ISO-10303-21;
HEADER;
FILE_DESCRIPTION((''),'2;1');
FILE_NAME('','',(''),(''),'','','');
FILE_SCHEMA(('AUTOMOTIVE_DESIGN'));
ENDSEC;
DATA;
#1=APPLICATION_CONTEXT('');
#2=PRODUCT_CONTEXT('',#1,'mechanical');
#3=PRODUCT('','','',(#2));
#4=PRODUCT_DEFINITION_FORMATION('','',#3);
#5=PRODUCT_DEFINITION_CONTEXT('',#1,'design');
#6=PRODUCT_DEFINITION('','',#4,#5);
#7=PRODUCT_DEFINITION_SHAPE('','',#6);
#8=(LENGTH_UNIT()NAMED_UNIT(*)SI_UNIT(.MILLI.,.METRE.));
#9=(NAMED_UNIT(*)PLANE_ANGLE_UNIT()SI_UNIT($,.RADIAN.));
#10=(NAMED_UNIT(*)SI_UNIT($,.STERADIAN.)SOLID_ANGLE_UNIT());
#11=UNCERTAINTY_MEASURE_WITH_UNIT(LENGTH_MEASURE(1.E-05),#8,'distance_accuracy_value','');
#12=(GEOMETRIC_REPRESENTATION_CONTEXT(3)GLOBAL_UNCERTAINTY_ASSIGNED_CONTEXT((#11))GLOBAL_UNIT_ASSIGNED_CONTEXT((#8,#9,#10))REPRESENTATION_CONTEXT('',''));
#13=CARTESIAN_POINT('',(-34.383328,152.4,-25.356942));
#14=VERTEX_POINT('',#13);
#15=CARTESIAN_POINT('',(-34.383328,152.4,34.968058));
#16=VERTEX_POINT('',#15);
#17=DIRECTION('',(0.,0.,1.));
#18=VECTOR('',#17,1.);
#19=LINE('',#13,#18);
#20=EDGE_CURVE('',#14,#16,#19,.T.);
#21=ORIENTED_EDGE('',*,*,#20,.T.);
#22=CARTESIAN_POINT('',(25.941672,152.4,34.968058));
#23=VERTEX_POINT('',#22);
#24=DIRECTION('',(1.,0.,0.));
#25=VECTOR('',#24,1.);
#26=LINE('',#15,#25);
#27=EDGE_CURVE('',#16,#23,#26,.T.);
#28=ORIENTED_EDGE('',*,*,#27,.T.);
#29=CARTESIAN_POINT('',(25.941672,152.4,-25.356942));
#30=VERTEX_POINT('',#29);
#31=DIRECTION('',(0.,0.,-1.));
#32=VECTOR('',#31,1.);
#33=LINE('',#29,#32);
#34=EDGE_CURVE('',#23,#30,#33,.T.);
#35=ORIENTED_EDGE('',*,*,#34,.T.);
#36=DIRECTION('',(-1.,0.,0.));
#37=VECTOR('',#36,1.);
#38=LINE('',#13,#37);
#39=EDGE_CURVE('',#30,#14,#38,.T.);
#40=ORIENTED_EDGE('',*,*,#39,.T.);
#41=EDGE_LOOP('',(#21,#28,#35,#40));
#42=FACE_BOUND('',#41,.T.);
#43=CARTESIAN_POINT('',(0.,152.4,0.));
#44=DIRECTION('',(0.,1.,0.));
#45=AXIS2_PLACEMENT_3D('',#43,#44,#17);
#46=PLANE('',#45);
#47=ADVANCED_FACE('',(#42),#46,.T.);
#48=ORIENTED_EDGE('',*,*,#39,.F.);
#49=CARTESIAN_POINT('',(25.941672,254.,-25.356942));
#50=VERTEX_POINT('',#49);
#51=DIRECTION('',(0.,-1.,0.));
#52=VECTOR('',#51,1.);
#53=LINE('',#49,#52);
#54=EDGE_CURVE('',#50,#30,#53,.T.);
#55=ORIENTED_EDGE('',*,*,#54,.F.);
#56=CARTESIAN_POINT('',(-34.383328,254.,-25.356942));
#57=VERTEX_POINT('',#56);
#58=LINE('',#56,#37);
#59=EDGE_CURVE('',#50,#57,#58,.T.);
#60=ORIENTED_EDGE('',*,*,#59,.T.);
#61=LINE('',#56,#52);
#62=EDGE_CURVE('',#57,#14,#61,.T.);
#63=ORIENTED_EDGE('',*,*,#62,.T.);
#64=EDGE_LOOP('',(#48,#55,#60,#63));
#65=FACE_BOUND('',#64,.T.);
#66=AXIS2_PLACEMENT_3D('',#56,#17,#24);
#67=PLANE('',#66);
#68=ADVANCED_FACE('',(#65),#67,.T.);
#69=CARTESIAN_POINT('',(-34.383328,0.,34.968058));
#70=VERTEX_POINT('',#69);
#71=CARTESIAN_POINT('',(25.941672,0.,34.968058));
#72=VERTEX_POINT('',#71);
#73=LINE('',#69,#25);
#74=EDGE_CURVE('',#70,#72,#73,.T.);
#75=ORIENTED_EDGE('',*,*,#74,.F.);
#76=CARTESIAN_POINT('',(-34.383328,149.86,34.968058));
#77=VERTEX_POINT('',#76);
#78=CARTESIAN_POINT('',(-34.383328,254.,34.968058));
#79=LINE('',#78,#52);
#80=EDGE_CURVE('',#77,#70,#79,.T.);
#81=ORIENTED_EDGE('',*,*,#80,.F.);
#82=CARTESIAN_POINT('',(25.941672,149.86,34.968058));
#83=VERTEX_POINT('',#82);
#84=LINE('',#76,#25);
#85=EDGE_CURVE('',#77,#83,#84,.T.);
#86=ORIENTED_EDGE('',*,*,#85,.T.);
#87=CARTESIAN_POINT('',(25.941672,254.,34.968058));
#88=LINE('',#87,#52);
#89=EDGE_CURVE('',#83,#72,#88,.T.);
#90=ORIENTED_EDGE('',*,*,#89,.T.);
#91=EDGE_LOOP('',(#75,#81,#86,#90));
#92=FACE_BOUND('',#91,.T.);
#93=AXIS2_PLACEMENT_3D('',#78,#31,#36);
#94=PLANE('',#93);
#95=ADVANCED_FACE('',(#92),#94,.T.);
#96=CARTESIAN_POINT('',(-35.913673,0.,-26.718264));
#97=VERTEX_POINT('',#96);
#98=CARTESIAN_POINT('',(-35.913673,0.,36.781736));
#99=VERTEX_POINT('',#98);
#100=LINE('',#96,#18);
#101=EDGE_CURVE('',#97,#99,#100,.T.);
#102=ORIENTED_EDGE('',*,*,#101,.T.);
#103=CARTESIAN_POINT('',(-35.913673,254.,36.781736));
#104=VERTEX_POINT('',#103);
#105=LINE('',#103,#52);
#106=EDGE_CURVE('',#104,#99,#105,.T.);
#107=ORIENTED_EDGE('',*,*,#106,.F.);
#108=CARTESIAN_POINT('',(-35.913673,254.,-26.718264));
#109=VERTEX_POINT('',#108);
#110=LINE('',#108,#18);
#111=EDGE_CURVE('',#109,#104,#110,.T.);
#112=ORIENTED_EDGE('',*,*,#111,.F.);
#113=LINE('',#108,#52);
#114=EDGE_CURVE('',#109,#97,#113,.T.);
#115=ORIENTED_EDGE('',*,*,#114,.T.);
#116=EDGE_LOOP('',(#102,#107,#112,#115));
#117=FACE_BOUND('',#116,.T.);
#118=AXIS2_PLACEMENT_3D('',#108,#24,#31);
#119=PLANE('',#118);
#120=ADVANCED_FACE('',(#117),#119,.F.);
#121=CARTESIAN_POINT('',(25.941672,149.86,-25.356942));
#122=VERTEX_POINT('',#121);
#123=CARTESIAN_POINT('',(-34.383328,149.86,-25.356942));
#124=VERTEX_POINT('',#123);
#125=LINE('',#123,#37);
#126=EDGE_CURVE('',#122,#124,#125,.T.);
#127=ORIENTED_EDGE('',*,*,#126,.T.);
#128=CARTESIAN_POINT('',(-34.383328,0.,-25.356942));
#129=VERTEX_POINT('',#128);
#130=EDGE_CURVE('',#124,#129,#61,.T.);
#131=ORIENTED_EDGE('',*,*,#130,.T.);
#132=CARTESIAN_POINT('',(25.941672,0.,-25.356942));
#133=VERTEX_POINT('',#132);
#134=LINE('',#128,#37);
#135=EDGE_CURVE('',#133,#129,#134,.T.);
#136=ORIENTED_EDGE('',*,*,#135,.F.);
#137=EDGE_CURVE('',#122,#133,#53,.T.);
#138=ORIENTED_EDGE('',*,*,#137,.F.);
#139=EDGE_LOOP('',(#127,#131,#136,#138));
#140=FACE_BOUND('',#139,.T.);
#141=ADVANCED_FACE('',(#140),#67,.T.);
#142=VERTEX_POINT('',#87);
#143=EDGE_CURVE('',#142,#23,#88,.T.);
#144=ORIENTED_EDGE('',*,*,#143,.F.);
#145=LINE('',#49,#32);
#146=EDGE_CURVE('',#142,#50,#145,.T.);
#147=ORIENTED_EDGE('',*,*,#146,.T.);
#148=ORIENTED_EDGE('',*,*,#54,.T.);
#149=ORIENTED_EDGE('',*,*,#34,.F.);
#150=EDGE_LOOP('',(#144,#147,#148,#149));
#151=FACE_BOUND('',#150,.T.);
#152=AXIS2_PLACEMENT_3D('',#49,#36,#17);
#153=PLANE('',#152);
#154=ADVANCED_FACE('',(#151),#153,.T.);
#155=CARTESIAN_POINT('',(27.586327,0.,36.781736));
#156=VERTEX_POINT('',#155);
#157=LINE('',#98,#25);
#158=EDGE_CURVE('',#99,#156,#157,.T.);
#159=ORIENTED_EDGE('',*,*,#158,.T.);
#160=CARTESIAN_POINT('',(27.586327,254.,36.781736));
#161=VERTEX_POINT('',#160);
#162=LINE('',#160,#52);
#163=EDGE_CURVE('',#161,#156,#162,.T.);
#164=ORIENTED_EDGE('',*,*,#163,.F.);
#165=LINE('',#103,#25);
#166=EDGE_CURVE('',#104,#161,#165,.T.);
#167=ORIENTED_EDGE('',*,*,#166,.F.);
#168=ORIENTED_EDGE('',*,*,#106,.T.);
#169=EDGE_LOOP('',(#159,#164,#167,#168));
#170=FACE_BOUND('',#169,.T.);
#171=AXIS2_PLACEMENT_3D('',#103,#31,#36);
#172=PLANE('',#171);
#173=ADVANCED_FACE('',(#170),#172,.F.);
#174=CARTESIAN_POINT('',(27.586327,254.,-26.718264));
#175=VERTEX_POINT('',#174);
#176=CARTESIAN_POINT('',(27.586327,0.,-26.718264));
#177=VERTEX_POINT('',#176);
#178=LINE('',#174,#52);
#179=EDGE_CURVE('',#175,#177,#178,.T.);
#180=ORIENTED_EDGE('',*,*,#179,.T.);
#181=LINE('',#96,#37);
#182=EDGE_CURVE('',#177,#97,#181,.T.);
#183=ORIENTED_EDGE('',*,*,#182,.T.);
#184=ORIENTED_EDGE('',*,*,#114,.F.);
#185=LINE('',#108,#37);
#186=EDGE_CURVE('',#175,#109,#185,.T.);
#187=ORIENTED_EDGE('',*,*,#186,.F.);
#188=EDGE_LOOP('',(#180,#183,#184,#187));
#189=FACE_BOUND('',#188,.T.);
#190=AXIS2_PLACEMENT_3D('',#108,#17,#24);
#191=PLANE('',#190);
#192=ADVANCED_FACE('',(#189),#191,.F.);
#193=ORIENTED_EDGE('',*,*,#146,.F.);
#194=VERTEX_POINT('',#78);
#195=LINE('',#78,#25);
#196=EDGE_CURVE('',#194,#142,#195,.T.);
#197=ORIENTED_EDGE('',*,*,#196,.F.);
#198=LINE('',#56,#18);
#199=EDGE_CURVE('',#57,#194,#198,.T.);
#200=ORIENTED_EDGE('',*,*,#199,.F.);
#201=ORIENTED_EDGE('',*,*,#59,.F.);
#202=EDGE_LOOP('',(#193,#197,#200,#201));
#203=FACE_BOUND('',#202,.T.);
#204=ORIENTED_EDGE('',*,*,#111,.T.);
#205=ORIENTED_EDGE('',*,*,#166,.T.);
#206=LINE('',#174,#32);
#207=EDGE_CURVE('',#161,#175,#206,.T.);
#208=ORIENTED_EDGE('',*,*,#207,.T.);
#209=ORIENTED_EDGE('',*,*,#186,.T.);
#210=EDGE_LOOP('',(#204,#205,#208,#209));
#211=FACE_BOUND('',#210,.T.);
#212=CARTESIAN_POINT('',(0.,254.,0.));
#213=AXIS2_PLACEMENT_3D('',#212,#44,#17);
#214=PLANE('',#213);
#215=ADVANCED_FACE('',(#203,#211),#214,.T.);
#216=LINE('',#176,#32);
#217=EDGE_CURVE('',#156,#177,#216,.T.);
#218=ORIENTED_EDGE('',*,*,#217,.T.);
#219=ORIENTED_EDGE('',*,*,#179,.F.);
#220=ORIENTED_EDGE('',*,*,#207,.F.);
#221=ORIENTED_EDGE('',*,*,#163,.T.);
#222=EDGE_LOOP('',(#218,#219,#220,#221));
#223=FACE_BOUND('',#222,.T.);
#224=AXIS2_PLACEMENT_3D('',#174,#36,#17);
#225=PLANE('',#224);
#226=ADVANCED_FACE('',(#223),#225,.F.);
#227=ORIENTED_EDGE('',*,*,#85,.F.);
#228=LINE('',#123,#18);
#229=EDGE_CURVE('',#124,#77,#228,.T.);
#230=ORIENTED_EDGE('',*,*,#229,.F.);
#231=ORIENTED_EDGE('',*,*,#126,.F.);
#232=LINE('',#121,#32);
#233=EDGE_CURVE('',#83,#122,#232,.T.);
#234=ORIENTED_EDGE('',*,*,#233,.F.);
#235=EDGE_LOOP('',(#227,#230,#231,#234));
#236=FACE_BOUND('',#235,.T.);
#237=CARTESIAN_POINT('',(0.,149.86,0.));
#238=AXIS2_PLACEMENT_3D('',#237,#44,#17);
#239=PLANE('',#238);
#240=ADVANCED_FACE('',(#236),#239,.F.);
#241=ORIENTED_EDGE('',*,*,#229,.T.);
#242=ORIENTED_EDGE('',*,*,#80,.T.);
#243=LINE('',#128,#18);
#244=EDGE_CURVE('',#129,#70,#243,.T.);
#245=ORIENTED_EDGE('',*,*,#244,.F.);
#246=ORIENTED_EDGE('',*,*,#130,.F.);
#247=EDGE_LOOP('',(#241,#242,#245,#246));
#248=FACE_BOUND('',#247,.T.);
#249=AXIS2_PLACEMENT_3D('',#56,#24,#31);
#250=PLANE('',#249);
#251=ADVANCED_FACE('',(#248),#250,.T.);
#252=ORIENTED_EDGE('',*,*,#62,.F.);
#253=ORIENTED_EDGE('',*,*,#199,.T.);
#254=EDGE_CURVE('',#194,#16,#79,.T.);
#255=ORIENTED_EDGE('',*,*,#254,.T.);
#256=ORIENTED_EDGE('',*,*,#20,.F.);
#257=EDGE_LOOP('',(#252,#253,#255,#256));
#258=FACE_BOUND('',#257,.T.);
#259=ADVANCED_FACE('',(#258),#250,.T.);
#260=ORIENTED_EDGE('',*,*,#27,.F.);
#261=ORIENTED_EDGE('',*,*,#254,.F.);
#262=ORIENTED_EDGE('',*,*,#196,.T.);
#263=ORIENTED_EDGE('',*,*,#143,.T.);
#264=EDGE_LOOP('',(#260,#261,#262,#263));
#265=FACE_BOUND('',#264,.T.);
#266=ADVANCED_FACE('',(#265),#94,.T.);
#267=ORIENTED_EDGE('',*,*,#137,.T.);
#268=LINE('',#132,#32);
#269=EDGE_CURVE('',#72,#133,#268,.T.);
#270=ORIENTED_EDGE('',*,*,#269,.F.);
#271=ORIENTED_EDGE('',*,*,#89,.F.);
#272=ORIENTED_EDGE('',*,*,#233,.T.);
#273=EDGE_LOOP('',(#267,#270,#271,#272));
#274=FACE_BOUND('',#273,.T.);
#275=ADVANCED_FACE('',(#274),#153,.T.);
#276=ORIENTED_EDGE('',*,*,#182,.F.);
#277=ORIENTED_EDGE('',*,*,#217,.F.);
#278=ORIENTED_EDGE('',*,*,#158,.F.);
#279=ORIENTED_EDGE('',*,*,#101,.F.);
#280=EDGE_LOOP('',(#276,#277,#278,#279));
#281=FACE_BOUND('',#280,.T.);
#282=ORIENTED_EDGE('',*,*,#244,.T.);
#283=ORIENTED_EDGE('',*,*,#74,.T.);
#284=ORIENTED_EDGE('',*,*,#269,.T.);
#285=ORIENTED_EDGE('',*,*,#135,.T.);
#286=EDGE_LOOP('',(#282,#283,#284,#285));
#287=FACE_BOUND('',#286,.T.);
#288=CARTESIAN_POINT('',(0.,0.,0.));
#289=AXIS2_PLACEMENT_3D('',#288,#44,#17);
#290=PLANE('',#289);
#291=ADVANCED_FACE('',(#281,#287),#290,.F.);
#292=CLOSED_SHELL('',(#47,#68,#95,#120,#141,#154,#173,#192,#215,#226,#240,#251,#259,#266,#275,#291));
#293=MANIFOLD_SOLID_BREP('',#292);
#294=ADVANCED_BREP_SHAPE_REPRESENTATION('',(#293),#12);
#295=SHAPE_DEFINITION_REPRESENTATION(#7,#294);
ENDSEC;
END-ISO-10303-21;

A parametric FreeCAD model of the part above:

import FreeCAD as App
import Part
import Sketcher
Q = App.Units.Quantity

doc = App.newDocument("Part")
body = doc.addObject("PartDesign::Body", "Body")

# Sketch on XZ plane
sketch1 = body.newObject("Sketcher::SketchObject", "Sketch")
sketch1.AttachmentSupport = (doc.getObject("XZ_Plane"), [""])
sketch1.MapMode = "FlatFace"
sketch1.addGeometry([
    Part.LineSegment(App.Vector(-36, -27, 0), App.Vector(-36, 37, 0)),  # 0
    Part.LineSegment(App.Vector(-36, 37, 0), App.Vector(28, 37, 0)),  # 1
    Part.LineSegment(App.Vector(28, 37, 0), App.Vector(28, -27, 0)),  # 2
    Part.LineSegment(App.Vector(28, -27, 0), App.Vector(-36, -27, 0)),  # 3
    Part.LineSegment(App.Vector(26, 35, 0), App.Vector(-34, 35, 0)),  # 4
    Part.LineSegment(App.Vector(-34, 35, 0), App.Vector(-34, -25, 0)),  # 5
    Part.LineSegment(App.Vector(-34, -25, 0), App.Vector(26, -25, 0)),  # 6
    Part.LineSegment(App.Vector(26, -25, 0), App.Vector(26, 35, 0)),  # 7
], False)
sketch1.addConstraint([
    Sketcher.Constraint("Coincident", 0, 2, 1, 1),
    Sketcher.Constraint("Coincident", 1, 2, 2, 1),
    Sketcher.Constraint("Coincident", 2, 2, 3, 1),
    Sketcher.Constraint("Coincident", 3, 2, 0, 1),
    Sketcher.Constraint("Coincident", 4, 2, 5, 1),
    Sketcher.Constraint("Coincident", 5, 2, 6, 1),
    Sketcher.Constraint("Coincident", 6, 2, 7, 1),
    Sketcher.Constraint("Coincident", 7, 2, 4, 1),
    Sketcher.Constraint("Vertical", 0),
    Sketcher.Constraint("Horizontal", 1),
    Sketcher.Constraint("Vertical", 2),
    Sketcher.Constraint("Horizontal", 3),
    Sketcher.Constraint("Horizontal", 4),
    Sketcher.Constraint("Vertical", 5),
    Sketcher.Constraint("Horizontal", 6),
    Sketcher.Constraint("Vertical", 7),
    Sketcher.Constraint("Equal", 3, 0),
    Sketcher.Constraint("Equal", 6, 5),
    Sketcher.Constraint("DistanceX", 1, 1, 1, 2, Q("2.5 in")),
    Sketcher.Constraint("DistanceX", 4, 2, 4, 1, Q("2.375 in")),
    Sketcher.Constraint("DistanceY", -1, 1, 0, 2, Q("1.4480998 in")),
    Sketcher.Constraint("DistanceX", 4, 2, -1, 1, Q("34.383328 mm")),
    Sketcher.Constraint("DistanceX", 0, 2, -1, 1, Q("35.913673 mm")),
    Sketcher.Constraint("DistanceY", -1, 1, 4, 2, Q("34.968058 mm")),
])
pad1 = body.newObject("PartDesign::Pad", "Pad")
pad1.Profile = sketch1
pad1.Length = Q("10 in")
pad1.Reversed = True

# Sketch on XZ plane
sketch2 = body.newObject("Sketcher::SketchObject", "Sketch001")
sketch2.AttachmentSupport = (doc.getObject("XZ_Plane"), [""])
sketch2.MapMode = "FlatFace"
sketch2.AttachmentOffset = App.Placement(App.Vector(0, 0, -6 * 25.4), App.Rotation())
sketch2.addGeometry([
    Part.LineSegment(App.Vector(-34, -25, 0), App.Vector(-34, 35, 0)),
    Part.LineSegment(App.Vector(-34, 35, 0), App.Vector(26, 35, 0)),
    Part.LineSegment(App.Vector(26, 35, 0), App.Vector(26, -25, 0)),
    Part.LineSegment(App.Vector(26, -25, 0), App.Vector(-34, -25, 0)),
], False)
sketch2.addConstraint([
    Sketcher.Constraint("Coincident", 0, 2, 1, 1),
    Sketcher.Constraint("Coincident", 1, 2, 2, 1),
    Sketcher.Constraint("Coincident", 2, 2, 3, 1),
    Sketcher.Constraint("Coincident", 3, 2, 0, 1),
    Sketcher.Constraint("Vertical", 0),
    Sketcher.Constraint("Horizontal", 1),
    Sketcher.Constraint("Vertical", 2),
    Sketcher.Constraint("Horizontal", 3),
    Sketcher.Constraint("Equal", 3, 0),
    Sketcher.Constraint("DistanceX", 1, 1, 1, 2, Q("2.375 in")),
    Sketcher.Constraint("DistanceX", 0, 2, -1, 1, Q("34.383328 mm")),
    Sketcher.Constraint("DistanceY", -1, 1, 0, 2, Q("34.968058 mm")),
])
pad2 = body.newObject("PartDesign::Pad", "Pad001")
pad2.Profile = sketch2
pad2.Length = Q("0.1 in")

doc.recompute()
